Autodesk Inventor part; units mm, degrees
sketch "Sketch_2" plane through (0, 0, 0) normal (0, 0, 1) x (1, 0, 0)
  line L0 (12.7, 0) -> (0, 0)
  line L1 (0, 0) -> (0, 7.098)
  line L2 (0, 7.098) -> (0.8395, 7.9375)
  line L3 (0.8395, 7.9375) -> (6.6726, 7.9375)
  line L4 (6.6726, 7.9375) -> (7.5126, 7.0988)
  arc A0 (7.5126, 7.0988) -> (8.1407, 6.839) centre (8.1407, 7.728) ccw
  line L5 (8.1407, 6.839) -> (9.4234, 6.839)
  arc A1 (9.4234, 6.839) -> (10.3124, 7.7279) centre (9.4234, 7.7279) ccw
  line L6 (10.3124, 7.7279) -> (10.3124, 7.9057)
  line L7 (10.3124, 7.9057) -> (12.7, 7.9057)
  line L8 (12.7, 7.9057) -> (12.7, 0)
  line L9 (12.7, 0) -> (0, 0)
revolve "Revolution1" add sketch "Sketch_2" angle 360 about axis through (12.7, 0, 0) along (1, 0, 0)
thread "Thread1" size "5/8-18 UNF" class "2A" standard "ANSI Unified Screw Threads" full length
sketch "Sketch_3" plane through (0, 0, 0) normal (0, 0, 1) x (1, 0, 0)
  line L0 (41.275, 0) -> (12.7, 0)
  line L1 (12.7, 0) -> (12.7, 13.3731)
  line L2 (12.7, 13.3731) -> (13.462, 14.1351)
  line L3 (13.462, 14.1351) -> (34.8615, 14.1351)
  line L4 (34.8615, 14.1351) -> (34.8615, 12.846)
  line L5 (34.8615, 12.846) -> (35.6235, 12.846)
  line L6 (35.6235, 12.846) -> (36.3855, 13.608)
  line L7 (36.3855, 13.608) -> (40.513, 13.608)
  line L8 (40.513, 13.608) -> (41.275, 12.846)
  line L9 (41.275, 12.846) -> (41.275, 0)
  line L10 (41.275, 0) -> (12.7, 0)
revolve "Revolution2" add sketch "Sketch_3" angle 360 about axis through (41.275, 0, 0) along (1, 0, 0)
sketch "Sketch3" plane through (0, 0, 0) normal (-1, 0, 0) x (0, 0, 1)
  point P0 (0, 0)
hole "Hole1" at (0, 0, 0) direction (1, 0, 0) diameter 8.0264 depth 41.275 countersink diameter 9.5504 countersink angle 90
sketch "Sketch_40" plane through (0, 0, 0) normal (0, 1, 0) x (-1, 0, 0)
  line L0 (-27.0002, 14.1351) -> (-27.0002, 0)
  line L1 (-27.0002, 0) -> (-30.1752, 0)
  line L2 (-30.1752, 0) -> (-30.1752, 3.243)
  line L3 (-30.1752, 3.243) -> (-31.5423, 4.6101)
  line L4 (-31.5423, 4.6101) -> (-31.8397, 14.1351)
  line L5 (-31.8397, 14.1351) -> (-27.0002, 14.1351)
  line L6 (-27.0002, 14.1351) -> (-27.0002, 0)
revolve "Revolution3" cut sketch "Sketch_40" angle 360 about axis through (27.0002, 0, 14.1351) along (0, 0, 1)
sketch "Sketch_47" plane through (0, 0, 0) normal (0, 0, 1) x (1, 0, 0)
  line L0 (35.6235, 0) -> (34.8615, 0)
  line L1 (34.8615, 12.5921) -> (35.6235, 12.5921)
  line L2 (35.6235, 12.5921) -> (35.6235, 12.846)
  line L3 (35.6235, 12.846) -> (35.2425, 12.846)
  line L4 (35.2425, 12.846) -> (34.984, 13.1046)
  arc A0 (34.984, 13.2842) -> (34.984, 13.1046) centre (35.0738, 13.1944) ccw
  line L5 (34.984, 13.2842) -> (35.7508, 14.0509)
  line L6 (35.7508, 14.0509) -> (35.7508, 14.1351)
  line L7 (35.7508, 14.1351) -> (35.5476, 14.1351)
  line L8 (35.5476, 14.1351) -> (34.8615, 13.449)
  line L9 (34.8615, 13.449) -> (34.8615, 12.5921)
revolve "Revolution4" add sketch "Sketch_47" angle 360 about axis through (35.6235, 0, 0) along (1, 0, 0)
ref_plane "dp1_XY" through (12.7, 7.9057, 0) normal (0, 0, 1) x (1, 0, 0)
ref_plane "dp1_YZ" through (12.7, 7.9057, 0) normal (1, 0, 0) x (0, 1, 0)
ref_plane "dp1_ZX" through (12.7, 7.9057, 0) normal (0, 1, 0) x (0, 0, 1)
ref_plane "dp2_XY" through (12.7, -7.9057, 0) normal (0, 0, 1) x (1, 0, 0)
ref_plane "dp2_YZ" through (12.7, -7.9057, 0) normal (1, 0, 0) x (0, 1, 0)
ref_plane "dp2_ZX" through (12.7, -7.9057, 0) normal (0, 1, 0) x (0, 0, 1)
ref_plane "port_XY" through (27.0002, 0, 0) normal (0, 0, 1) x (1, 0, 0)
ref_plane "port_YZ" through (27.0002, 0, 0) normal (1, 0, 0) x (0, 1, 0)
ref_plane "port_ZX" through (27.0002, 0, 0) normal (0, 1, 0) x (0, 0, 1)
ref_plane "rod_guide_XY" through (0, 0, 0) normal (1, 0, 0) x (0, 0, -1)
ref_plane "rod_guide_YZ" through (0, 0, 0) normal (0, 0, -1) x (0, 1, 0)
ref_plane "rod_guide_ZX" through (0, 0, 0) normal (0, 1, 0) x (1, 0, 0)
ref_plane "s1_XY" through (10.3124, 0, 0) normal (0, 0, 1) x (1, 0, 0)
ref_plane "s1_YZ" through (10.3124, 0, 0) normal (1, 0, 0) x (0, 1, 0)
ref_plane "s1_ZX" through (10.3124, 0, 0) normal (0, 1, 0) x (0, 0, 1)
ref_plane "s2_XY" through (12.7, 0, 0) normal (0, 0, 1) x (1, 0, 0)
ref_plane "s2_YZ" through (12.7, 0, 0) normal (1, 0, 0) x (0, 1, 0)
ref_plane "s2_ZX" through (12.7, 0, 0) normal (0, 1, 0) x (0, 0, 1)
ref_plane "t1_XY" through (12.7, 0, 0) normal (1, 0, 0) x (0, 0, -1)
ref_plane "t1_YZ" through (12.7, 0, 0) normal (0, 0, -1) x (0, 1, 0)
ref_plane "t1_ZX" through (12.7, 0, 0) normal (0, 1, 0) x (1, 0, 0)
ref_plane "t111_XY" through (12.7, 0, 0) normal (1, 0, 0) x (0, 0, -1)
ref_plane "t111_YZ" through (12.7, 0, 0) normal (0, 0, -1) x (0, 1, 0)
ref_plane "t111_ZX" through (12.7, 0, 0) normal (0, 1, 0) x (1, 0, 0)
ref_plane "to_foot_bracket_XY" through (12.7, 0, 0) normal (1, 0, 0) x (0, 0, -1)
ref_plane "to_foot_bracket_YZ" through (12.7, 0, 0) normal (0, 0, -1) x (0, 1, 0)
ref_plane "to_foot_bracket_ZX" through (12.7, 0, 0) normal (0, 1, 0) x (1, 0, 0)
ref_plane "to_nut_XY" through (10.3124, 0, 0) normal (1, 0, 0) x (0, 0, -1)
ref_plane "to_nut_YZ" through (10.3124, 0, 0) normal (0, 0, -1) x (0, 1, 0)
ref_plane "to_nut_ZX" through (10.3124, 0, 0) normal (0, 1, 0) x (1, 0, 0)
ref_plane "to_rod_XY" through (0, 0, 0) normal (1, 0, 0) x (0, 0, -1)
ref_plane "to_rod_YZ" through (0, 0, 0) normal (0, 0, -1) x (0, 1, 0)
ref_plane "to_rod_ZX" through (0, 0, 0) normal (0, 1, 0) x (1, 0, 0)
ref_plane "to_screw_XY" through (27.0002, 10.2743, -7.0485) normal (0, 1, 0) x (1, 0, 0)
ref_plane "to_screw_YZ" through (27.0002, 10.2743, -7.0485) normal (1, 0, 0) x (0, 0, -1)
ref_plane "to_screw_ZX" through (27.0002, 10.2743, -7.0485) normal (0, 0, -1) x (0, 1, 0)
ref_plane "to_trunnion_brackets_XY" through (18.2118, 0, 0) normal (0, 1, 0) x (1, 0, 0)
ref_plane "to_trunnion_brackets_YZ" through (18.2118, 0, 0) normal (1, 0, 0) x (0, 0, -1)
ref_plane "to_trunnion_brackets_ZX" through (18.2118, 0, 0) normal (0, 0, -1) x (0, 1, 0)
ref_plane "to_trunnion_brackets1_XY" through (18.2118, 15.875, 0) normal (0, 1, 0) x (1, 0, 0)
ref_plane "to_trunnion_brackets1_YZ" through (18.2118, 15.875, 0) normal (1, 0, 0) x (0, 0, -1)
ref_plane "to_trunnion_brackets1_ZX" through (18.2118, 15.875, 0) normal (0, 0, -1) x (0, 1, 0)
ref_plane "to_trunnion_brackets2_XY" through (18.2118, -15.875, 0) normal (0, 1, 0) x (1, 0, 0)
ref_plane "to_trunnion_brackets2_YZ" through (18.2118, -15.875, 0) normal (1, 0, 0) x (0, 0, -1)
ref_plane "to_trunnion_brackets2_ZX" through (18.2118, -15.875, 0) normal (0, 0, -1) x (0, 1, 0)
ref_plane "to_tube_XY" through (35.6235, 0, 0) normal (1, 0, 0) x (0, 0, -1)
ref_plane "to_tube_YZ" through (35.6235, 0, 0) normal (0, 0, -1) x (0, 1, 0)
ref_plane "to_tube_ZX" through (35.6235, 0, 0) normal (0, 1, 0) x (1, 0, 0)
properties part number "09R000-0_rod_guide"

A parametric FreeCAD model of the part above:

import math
import FreeCAD as App
import Part
import Sketcher
Q = App.Units.Quantity

doc = App.newDocument("Part")
params = doc.addObject("Spreadsheet::Sheet", "Params")
for row, (alias, value) in enumerate([
    ("sketch1_width", "0.5 in"),
    ("sketch1_radius", "0.035 in"),
    ("sketch1_width2", "0.094 in"),
    ("sketch1_height", "0.007 in"),
    ("revolution_angle", "360 deg"),
    ("sketch2_width", "0.03 in"),
    ("sketch2_width2", "1.125 in"),
    ("revolution2_angle", "360 deg"),
    ("sketch3_diameter", "0.316 in"),
    ("hole_diameter", "0.316 in"),
    ("hole_depth", "1.625 in"),
    ("hole_csink_diameter", "0.376 in"),
    ("sketch4_width", "0.125 in"),
    ("groove_angle", "360 deg"),
    ("sketch5_radius", "0.005 in"),
    ("sketch5_width", "0.03 in"),
    ("sketch5_height", "0.01 in"),
    ("sketch5_width2", "0.015 in"),
    ("sketch5_width3", "0.008 in"),
    ("revolution3_angle", "360 deg"),
], start=1):
    params.set(f"A{row}", alias)
    params.set(f"B{row}", "=" + value)
    params.setAlias(f"B{row}", alias)

body = doc.addObject("PartDesign::Body", "Body")

sketch1 = doc.addObject("Sketcher::SketchObject", "Sketch")
body.addObject(sketch1)
sketch1.AttachmentSupport = (doc.XY_Plane, [""])
sketch1.MapMode = "FlatFace"
sketch1.addGeometry([
    Part.LineSegment(App.Vector(0, 0, 0), App.Vector(12.7, 0, 0)),
    Part.LineSegment(App.Vector(12.7, 0, 0), App.Vector(12.7, 7.91, 0)),
    Part.LineSegment(App.Vector(12.7, 7.91, 0), App.Vector(10.31, 7.91, 0)),
    Part.LineSegment(App.Vector(10.31, 7.91, 0), App.Vector(10.31, 7.73, 0)),
    Part.ArcOfCircle(Part.Circle(App.Vector(9.42, 7.73, 0), App.Vector(0, 0, 1), 0.89), math.radians(-90), math.radians(0)),
    Part.LineSegment(App.Vector(9.42, 6.84, 0), App.Vector(8.14, 6.84, 0)),
    Part.ArcOfCircle(Part.Circle(App.Vector(8.14, 7.73, 0), App.Vector(0, 0, 1), 0.89), math.radians(-135), math.radians(-90)),
    Part.LineSegment(App.Vector(7.51, 7.1, 0), App.Vector(6.67, 7.94, 0)),
    Part.LineSegment(App.Vector(6.67, 7.94, 0), App.Vector(0.84, 7.94, 0)),
    Part.LineSegment(App.Vector(0.84, 7.94, 0), App.Vector(0, 7.1, 0)),
    Part.LineSegment(App.Vector(0, 7.1, 0), App.Vector(0, 0, 0)),
], False)
sketch1.addConstraint([
    Sketcher.Constraint("Coincident", 0, 2, 1, 1),
    Sketcher.Constraint("Coincident", 1, 2, 2, 1),
    Sketcher.Constraint("Coincident", 2, 2, 3, 1),
    Sketcher.Constraint("Tangent", 3, 2, 4, 2),
    Sketcher.Constraint("Tangent", 4, 1, 5, 1),
    Sketcher.Constraint("Tangent", 5, 2, 6, 2),
    Sketcher.Constraint("Tangent", 6, 1, 7, 1),
    Sketcher.Constraint("Coincident", 7, 2, 8, 1),
    Sketcher.Constraint("Coincident", 8, 2, 9, 1),
    Sketcher.Constraint("Coincident", 9, 2, 10, 1),
    Sketcher.Constraint("Coincident", 10, 2, 0, 1),
    Sketcher.Constraint("Horizontal", 0),
    Sketcher.Constraint("Vertical", 1),
    Sketcher.Constraint("Horizontal", 2),
    Sketcher.Constraint("Vertical", 3),
    Sketcher.Constraint("Horizontal", 5),
    Sketcher.Constraint("Horizontal", 8),
    Sketcher.Constraint("Vertical", 10),
    Sketcher.Constraint("Coincident", 10, 2, -1, 1),
    Sketcher.Constraint("Equal", 4, 6),
    Sketcher.Constraint("DistanceX", 0, 1, 0, 2, Q("0.5 in")),
    Sketcher.Constraint("Angle", 9, Q("-135 deg")),
    Sketcher.Constraint("Radius", 4, Q("0.035 in")),
    Sketcher.Constraint("DistanceX", 2, 2, 2, 1, Q("0.094 in")),
    Sketcher.Constraint("DistanceY", 3, 2, 3, 1, Q("0.007 in")),
    Sketcher.Constraint("DistanceX", 5, 2, 5, 1, Q("0.0505 in")),
    Sketcher.Constraint("DistanceY", -1, 1, 7, 2, Q("0.3125 in")),
    Sketcher.Constraint("DistanceX", 8, 2, 8, 1, 5.833),
    Sketcher.Constraint("DistanceY", 1, 1, 1, 2, 7.9057),
    Sketcher.Constraint("DistanceY", 10, 2, 10, 1, 7.098),
])
sketch1.setExpression("Constraints[20]", "Params.sketch1_width")
sketch1.setExpression("Constraints[22]", "Params.sketch1_radius")
sketch1.setExpression("Constraints[23]", "Params.sketch1_width2")
sketch1.setExpression("Constraints[24]", "Params.sketch1_height")
revolution = doc.addObject("PartDesign::Revolution", "Revolution")
body.addObject(revolution)
revolution.Profile = sketch1
revolution.ReferenceAxis = (sketch1, ["H_Axis"])
revolution.setExpression("Angle", "Params.revolution_angle")

sketch2 = doc.addObject("Sketcher::SketchObject", "Sketch001")
body.addObject(sketch2)
sketch2.AttachmentSupport = (doc.XY_Plane, [""])
sketch2.MapMode = "FlatFace"
sketch2.addGeometry([
    Part.LineSegment(App.Vector(12.7, 0, 0), App.Vector(41.3, 0, 0)),
    Part.LineSegment(App.Vector(41.3, 0, 0), App.Vector(41.3, 12.8, 0)),
    Part.LineSegment(App.Vector(41.3, 12.8, 0), App.Vector(40.5, 13.6, 0)),
    Part.LineSegment(App.Vector(40.5, 13.6, 0), App.Vector(36.4, 13.6, 0)),
    Part.LineSegment(App.Vector(36.4, 13.6, 0), App.Vector(35.6, 12.8, 0)),
    Part.LineSegment(App.Vector(35.6, 12.8, 0), App.Vector(34.9, 12.8, 0)),
    Part.LineSegment(App.Vector(34.9, 12.8, 0), App.Vector(34.9, 14.1, 0)),
    Part.LineSegment(App.Vector(34.9, 14.1, 0), App.Vector(13.5, 14.1, 0)),
    Part.LineSegment(App.Vector(13.5, 14.1, 0), App.Vector(12.7, 13.4, 0)),
    Part.LineSegment(App.Vector(12.7, 13.4, 0), App.Vector(12.7, 0, 0)),
], False)
sketch2.addConstraint([
    Sketcher.Constraint("Coincident", 0, 2, 1, 1),
    Sketcher.Constraint("Coincident", 1, 2, 2, 1),
    Sketcher.Constraint("Coincident", 2, 2, 3, 1),
    Sketcher.Constraint("Coincident", 3, 2, 4, 1),
    Sketcher.Constraint("Coincident", 4, 2, 5, 1),
    Sketcher.Constraint("Coincident", 5, 2, 6, 1),
    Sketcher.Constraint("Coincident", 6, 2, 7, 1),
    Sketcher.Constraint("Coincident", 7, 2, 8, 1),
    Sketcher.Constraint("Coincident", 8, 2, 9, 1),
    Sketcher.Constraint("Coincident", 9, 2, 0, 1),
    Sketcher.Constraint("Horizontal", 0),
    Sketcher.Constraint("Vertical", 1),
    Sketcher.Constraint("Horizontal", 3),
    Sketcher.Constraint("Horizontal", 5),
    Sketcher.Constraint("Vertical", 6),
    Sketcher.Constraint("Horizontal", 7),
    Sketcher.Constraint("Vertical", 9),
    Sketcher.Constraint("PointOnObject", 0, 2, -1),
    Sketcher.Constraint("Perpendicular", 2, 4),
    Sketcher.Constraint("Parallel", 4, 8),
    Sketcher.Constraint("Horizontal", 1, 2, 4, 2),
    Sketcher.Constraint("Equal", 2, 4),
    Sketcher.Constraint("Equal", 4, 8),
    Sketcher.Constraint("DistanceX", 5, 2, 5, 1, Q("0.03 in")),
    Sketcher.Constraint("DistanceX", -1, 1, 8, 2, Q("0.5 in")),
    Sketcher.Constraint("DistanceX", 0, 1, 0, 2, Q("1.125 in")),
    Sketcher.Constraint("DistanceX", -1, 1, 7, 2, Q("0.53 in")),
    Sketcher.Constraint("DistanceX", 3, 2, 3, 1, Q("0.1625 in")),
    Sketcher.Constraint("DistanceY", 9, 2, 9, 1, Q("0.5265 in")),
    Sketcher.Constraint("DistanceY", 1, 1, 1, 2, 12.846),
])
sketch2.setExpression("Constraints[23]", "Params.sketch2_width")
sketch2.setExpression("Constraints[25]", "Params.sketch2_width2")
revolution2 = doc.addObject("PartDesign::Revolution", "Revolution001")
body.addObject(revolution2)
revolution2.Profile = sketch2
revolution2.ReferenceAxis = (sketch2, ["H_Axis"])
revolution2.setExpression("Angle", "Params.revolution2_angle")

sketch3 = doc.addObject("Sketcher::SketchObject", "Sketch002")
body.addObject(sketch3)
sketch3.AttachmentSupport = (doc.YZ_Plane, [""])
sketch3.MapMode = "FlatFace"
sketch3.addGeometry(Part.Circle(App.Vector(0, 0, 0), App.Vector(0, 0, 1), 4), False)
sketch3.addConstraint([
    Sketcher.Constraint("Coincident", 0, 3, -1, 1),
    Sketcher.Constraint("Diameter", 0, Q("0.316 in")),
])
sketch3.setExpression("Constraints[1]", "Params.sketch3_diameter")
doc.recompute()
hole = doc.addObject("PartDesign::Hole", "Hole")
body.addObject(hole)
hole.Profile = sketch3
hole.ThreadType = "None"
hole.setExpression("Diameter", "Params.hole_diameter")
hole.DepthType = "Dimension"
hole.setExpression("Depth", "Params.hole_depth")
hole.DrillPoint = "Flat"
hole.HoleCutType = "Countersink"
hole.setExpression("HoleCutDiameter", "Params.hole_csink_diameter")
hole.HoleCutCountersinkAngle = 90
hole.Reversed = True

sketch4 = doc.addObject("Sketcher::SketchObject", "Sketch003")
body.addObject(sketch4)
sketch4.AttachmentSupport = (doc.XZ_Plane, [""])
sketch4.MapMode = "FlatFace"
sketch4.addGeometry([
    Part.LineSegment(App.Vector(27, 0, 0), App.Vector(27, 14.1, 0)),
    Part.LineSegment(App.Vector(27, 14.1, 0), App.Vector(31.8, 14.1, 0)),
    Part.LineSegment(App.Vector(31.8, 14.1, 0), App.Vector(31.5, 4.6, 0)),
    Part.LineSegment(App.Vector(31.5, 4.6, 0), App.Vector(30.2, 3.2, 0)),
    Part.LineSegment(App.Vector(30.2, 3.2, 0), App.Vector(30.2, 0, 0)),
    Part.LineSegment(App.Vector(30.2, 0, 0), App.Vector(27, 0, 0)),
], False)
sketch4.addGeometry(Part.LineSegment(App.Vector(27, 0, 0), App.Vector(27, 14.1, 0)), True)
sketch4.addConstraint([
    Sketcher.Constraint("Coincident", 0, 2, 1, 1),
    Sketcher.Constraint("Coincident", 1, 2, 2, 1),
    Sketcher.Constraint("Coincident", 2, 2, 3, 1),
    Sketcher.Constraint("Coincident", 3, 2, 4, 1),
    Sketcher.Constraint("Coincident", 4, 2, 5, 1),
    Sketcher.Constraint("Coincident", 5, 2, 0, 1),
    Sketcher.Constraint("Vertical", 0),
    Sketcher.Constraint("Horizontal", 1),
    Sketcher.Constraint("Vertical", 4),
    Sketcher.Constraint("Horizontal", 5),
    Sketcher.Constraint("Vertical", 6),
    Sketcher.Constraint("Coincident", 6, 1, 5, 2),
    Sketcher.Constraint("PointOnObject", 4, 2, -1),
    Sketcher.Constraint("Horizontal", 1, 2, 6, 2),
    Sketcher.Constraint("Angle", 3, Q("-135 deg")),
    Sketcher.Constraint("DistanceX", 5, 2, 5, 1, Q("0.125 in")),
    Sketcher.Constraint("DistanceY", 0, 1, 0, 2, Q("0.5565 in")),
    Sketcher.Constraint("DistanceX", -1, 1, 0, 2, Q("1.063 in")),
    Sketcher.Constraint("DistanceY", 2, 2, 1, 2, Q("0.375 in")),
    Sketcher.Constraint("DistanceX", 1, 1, 1, 2, 4.8395),
    Sketcher.Constraint("DistanceY", 4, 2, 4, 1, 3.243),
])
sketch4.setExpression("Constraints[15]", "Params.sketch4_width")
groove = doc.addObject("PartDesign::Groove", "Groove")
body.addObject(groove)
groove.Profile = sketch4
groove.ReferenceAxis = (sketch4, ["Axis0"])
groove.setExpression("Angle", "Params.groove_angle")

sketch5 = doc.addObject("Sketcher::SketchObject", "Sketch004")
body.addObject(sketch5)
sketch5.AttachmentSupport = (doc.XY_Plane, [""])
sketch5.MapMode = "FlatFace"
sketch5.addGeometry([
    Part.LineSegment(App.Vector(34.86, 13.45, 0), App.Vector(34.86, 12.59, 0)),
    Part.LineSegment(App.Vector(34.86, 12.59, 0), App.Vector(35.62, 12.59, 0)),
    Part.LineSegment(App.Vector(35.62, 12.59, 0), App.Vector(35.62, 12.85, 0)),
    Part.LineSegment(App.Vector(35.62, 12.85, 0), App.Vector(35.24, 12.85, 0)),
    Part.LineSegment(App.Vector(35.24, 12.85, 0), App.Vector(34.98, 13.1, 0)),
    Part.ArcOfCircle(Part.Circle(App.Vector(35.07, 13.19, 0), App.Vector(0, 0, 1), 0.13), math.radians(135), math.radians(225)),
    Part.LineSegment(App.Vector(34.98, 13.28, 0), App.Vector(35.75, 14.05, 0)),
    Part.LineSegment(App.Vector(35.75, 14.05, 0), App.Vector(35.75, 14.14, 0)),
    Part.LineSegment(App.Vector(35.75, 14.14, 0), App.Vector(35.55, 14.14, 0)),
    Part.LineSegment(App.Vector(35.55, 14.14, 0), App.Vector(34.86, 13.45, 0)),
], False)
sketch5.addConstraint([
    Sketcher.Constraint("Coincident", 0, 2, 1, 1),
    Sketcher.Constraint("Coincident", 1, 2, 2, 1),
    Sketcher.Constraint("Coincident", 2, 2, 3, 1),
    Sketcher.Constraint("Coincident", 3, 2, 4, 1),
    Sketcher.Constraint("Tangent", 4, 2, 5, 2),
    Sketcher.Constraint("Tangent", 5, 1, 6, 1),
    Sketcher.Constraint("Coincident", 6, 2, 7, 1),
    Sketcher.Constraint("Coincident", 7, 2, 8, 1),
    Sketcher.Constraint("Coincident", 8, 2, 9, 1),
    Sketcher.Constraint("Coincident", 9, 2, 0, 1),
    Sketcher.Constraint("Vertical", 0),
    Sketcher.Constraint("Horizontal", 1),
    Sketcher.Constraint("Vertical", 2),
    Sketcher.Constraint("Horizontal", 3),
    Sketcher.Constraint("Vertical", 7),
    Sketcher.Constraint("Horizontal", 8),
    Sketcher.Constraint("Perpendicular", 4, 6),
    Sketcher.Constraint("Parallel", 6, 9),
    Sketcher.Constraint("Vertical", 4, 2, 5, 1),
    Sketcher.Constraint("Radius", 5, Q("0.005 in")),
    Sketcher.Constraint("DistanceX", 1, 1, 1, 2, Q("0.03 in")),
    Sketcher.Constraint("DistanceY", 2, 1, 2, 2, Q("0.01 in")),
    Sketcher.Constraint("DistanceX", 3, 2, 3, 1, Q("0.015 in")),
    Sketcher.Constraint("DistanceX", 8, 2, 8, 1, Q("0.008 in")),
    Sketcher.Constraint("DistanceX", 3, 2, 6, 2, Q("0.02 in")),
    Sketcher.Constraint("DistanceY", -1, 1, 5, 1, Q("0.523 in")),
    Sketcher.Constraint("Distance", 4, Q("0.0144 in")),
    Sketcher.Constraint("DistanceY", 0, 2, 0, 1, 0.857),
    Sketcher.Constraint("DistanceX", -1, 1, 0, 2, Q("1.3725 in")),
])
sketch5.setExpression("Constraints[19]", "Params.sketch5_radius")
sketch5.setExpression("Constraints[20]", "Params.sketch5_width")
sketch5.setExpression("Constraints[21]", "Params.sketch5_height")
sketch5.setExpression("Constraints[22]", "Params.sketch5_width2")
sketch5.setExpression("Constraints[23]", "Params.sketch5_width3")
revolution3 = doc.addObject("PartDesign::Revolution", "Revolution002")
body.addObject(revolution3)
revolution3.Profile = sketch5
revolution3.ReferenceAxis = (sketch5, ["H_Axis"])
revolution3.setExpression("Angle", "Params.revolution3_angle")

doc.recompute()
